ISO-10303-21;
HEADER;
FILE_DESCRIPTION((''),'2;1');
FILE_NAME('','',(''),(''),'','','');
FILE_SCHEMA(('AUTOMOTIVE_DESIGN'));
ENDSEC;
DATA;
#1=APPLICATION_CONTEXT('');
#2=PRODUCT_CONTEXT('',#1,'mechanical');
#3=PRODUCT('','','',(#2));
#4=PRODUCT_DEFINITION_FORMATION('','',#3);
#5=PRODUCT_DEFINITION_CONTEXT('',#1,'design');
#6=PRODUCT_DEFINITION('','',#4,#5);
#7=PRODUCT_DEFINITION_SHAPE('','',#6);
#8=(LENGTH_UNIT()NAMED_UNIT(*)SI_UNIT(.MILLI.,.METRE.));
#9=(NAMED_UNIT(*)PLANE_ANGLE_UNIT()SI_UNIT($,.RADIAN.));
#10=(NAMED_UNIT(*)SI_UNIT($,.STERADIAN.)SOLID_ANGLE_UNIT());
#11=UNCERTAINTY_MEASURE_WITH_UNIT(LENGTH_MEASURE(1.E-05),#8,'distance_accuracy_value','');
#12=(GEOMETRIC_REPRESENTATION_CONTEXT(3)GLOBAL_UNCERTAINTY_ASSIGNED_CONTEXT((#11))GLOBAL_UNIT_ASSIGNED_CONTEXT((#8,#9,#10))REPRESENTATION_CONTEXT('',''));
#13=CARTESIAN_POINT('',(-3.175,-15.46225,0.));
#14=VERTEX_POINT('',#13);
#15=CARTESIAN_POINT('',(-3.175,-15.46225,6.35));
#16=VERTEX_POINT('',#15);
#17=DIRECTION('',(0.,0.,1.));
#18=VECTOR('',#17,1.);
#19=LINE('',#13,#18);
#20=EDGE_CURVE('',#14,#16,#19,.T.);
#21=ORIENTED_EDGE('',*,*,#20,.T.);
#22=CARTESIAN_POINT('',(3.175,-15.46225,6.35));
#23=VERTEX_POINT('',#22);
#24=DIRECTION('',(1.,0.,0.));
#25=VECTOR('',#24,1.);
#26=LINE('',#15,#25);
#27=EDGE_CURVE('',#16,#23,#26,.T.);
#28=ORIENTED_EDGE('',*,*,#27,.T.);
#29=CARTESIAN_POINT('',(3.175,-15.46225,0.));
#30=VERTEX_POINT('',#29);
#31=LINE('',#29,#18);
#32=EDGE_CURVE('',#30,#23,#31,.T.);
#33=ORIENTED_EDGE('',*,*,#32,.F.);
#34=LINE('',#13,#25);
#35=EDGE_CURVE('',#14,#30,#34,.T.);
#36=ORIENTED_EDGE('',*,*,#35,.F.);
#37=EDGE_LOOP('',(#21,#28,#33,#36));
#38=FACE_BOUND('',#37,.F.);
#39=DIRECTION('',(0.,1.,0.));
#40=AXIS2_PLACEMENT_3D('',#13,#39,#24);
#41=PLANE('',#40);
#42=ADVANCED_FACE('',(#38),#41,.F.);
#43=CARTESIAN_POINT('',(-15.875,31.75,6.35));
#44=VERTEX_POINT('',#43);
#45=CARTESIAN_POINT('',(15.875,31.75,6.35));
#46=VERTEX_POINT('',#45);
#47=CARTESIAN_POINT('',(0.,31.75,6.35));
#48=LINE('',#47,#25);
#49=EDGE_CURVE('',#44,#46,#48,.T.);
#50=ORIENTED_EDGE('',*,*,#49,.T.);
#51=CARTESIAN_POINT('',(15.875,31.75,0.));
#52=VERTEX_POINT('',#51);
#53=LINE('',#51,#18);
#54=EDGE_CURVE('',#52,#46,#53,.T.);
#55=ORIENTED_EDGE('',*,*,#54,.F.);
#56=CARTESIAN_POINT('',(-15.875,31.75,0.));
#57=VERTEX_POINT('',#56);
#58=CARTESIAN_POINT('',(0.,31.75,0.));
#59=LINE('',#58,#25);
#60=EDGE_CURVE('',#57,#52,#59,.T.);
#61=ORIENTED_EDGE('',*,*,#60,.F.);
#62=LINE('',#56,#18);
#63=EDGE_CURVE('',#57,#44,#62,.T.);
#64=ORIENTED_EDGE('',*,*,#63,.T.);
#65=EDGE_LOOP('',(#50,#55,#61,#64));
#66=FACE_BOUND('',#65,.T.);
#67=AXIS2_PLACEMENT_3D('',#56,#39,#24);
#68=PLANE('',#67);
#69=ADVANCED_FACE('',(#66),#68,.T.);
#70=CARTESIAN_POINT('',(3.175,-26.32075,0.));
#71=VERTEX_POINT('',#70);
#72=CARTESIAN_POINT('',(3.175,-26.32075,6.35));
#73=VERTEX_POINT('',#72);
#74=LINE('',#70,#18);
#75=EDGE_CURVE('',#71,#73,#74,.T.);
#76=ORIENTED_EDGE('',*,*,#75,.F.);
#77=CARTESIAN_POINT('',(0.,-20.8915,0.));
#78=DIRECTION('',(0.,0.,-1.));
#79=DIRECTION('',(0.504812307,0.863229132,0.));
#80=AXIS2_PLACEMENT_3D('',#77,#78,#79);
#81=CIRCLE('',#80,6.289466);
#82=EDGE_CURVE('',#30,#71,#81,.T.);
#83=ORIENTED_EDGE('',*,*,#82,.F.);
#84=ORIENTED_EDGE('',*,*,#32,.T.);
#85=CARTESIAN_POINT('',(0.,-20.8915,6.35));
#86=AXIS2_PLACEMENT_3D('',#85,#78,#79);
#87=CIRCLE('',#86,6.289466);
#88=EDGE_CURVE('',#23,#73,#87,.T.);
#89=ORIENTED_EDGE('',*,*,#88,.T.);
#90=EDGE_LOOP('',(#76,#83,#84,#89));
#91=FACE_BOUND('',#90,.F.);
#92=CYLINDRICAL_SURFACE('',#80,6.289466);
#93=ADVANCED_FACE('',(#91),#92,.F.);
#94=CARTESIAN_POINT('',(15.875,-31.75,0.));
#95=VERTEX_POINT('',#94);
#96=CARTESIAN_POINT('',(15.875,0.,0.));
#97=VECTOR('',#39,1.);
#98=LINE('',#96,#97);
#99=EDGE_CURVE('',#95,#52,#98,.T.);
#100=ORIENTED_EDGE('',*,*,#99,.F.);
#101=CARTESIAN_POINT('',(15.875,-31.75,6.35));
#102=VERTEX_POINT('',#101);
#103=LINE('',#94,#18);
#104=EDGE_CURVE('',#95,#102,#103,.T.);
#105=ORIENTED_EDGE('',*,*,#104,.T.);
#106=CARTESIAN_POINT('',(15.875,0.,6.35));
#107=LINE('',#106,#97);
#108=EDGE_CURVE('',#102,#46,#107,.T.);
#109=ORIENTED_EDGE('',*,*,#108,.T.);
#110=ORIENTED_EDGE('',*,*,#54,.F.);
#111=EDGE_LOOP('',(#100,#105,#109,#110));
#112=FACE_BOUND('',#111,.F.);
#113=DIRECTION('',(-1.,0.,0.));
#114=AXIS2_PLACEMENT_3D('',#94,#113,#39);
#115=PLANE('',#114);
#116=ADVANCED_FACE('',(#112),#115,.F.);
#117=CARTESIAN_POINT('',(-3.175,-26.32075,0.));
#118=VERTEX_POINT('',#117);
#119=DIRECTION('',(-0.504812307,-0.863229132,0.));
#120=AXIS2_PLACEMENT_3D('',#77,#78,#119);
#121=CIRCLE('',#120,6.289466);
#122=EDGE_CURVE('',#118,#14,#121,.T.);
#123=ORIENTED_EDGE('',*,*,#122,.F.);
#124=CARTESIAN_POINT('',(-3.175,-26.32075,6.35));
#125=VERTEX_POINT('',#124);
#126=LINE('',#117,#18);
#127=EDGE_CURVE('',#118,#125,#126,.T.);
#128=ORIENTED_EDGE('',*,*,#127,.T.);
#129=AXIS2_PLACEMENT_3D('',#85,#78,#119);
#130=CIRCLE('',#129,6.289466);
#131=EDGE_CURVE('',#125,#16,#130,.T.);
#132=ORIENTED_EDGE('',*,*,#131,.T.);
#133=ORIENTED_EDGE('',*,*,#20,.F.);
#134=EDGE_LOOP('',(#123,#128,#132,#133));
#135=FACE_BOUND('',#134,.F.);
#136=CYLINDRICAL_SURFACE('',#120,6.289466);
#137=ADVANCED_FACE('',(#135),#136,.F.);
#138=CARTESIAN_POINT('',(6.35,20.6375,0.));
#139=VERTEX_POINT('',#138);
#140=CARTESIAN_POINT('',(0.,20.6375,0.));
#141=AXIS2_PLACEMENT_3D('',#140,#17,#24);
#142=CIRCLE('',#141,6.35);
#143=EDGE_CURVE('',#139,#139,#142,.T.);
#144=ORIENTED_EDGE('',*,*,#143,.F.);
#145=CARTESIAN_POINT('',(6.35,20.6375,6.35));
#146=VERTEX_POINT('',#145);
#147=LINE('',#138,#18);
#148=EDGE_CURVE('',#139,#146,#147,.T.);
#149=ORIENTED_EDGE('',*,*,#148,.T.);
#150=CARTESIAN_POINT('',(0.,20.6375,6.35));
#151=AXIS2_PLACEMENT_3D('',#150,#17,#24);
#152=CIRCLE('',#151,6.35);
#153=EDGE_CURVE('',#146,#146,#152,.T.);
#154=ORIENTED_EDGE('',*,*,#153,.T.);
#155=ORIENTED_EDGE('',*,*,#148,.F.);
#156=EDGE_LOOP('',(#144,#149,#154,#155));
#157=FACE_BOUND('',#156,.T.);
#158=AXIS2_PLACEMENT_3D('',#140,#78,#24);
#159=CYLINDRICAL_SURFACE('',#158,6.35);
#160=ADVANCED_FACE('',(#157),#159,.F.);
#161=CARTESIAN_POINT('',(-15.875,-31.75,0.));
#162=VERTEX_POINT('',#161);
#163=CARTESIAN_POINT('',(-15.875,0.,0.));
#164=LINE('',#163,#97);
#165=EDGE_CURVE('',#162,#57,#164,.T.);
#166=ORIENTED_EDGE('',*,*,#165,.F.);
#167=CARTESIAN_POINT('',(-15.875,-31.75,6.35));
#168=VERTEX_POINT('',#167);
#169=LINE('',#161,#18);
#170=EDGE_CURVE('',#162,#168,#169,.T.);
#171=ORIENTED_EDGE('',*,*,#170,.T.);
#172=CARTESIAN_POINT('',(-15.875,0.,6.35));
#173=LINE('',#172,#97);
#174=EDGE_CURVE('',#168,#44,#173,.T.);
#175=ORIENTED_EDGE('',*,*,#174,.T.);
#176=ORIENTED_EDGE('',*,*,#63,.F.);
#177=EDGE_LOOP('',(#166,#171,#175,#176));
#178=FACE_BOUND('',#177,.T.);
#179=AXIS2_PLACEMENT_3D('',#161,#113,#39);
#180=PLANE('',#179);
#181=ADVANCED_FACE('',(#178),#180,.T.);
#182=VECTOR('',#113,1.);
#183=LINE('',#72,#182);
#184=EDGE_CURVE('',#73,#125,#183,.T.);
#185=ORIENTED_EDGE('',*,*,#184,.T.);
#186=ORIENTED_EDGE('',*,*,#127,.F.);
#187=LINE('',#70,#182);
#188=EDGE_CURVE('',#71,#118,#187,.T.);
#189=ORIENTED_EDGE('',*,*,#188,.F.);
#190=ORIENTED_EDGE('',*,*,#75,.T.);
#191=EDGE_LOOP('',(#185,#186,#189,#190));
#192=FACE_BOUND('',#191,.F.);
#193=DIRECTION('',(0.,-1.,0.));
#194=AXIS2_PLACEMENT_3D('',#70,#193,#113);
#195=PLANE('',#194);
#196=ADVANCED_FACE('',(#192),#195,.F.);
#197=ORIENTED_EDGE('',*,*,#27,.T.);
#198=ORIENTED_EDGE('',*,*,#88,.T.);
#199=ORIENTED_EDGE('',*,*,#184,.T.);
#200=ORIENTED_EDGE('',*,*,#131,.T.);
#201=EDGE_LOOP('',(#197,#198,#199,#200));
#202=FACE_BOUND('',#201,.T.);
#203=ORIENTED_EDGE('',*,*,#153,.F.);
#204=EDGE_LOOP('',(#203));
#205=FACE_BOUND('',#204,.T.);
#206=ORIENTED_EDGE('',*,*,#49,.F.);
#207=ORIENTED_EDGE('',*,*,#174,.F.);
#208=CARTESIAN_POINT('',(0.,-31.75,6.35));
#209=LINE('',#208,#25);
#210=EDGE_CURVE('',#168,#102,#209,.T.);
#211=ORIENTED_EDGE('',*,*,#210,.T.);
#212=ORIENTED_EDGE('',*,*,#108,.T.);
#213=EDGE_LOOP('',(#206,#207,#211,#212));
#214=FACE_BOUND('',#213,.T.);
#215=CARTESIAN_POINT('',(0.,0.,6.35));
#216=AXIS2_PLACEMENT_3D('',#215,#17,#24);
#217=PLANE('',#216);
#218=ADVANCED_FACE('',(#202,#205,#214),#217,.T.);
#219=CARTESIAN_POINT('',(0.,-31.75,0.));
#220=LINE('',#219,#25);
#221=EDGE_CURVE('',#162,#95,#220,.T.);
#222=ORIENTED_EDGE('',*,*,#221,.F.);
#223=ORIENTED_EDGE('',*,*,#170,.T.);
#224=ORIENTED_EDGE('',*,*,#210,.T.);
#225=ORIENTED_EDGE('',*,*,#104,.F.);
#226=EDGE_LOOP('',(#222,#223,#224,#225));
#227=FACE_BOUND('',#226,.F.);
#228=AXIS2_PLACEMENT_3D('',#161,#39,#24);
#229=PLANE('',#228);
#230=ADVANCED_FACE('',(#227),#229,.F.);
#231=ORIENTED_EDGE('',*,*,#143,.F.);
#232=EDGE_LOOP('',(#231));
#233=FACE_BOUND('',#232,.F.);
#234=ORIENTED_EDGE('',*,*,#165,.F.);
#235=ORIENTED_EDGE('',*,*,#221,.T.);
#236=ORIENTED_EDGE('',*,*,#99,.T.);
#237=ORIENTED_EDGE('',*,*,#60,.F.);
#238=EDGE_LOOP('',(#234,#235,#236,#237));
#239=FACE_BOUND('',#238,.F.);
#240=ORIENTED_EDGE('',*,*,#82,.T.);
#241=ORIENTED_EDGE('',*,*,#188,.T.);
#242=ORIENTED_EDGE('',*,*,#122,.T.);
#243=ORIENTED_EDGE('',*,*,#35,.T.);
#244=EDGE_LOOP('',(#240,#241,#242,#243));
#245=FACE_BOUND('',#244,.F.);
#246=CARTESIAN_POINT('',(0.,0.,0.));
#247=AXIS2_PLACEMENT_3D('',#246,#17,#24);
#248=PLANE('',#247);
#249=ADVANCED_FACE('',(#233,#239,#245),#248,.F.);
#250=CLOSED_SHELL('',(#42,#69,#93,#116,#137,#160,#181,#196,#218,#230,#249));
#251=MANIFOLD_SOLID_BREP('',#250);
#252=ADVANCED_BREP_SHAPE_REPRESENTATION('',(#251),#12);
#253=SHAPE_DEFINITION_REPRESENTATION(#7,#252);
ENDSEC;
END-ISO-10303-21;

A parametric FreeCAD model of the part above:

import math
import FreeCAD as App
import Part
import Sketcher
Q = App.Units.Quantity


def add_polygon(sketch, points):
    """Adds a closed chain of lines whose ends are joined by coincident constraints."""
    first, n = sketch.GeometryCount, len(points)
    for a, b in zip(points, points[1:] + points[:1]):
        sketch.addGeometry(Part.LineSegment(App.Vector(*a, 0), App.Vector(*b, 0)), False)
    for i in range(n):
        sketch.addConstraint(Sketcher.Constraint("Coincident", first + i, 2, first + (i + 1) % n, 1))

doc = App.newDocument("Part")
body = doc.addObject("PartDesign::Body", "Body")

# Sketch on XY plane
sketch1 = body.newObject("Sketcher::SketchObject", "Sketch")
sketch1.AttachmentSupport = (doc.getObject("XY_Plane"), [""])
sketch1.MapMode = "FlatFace"
add_polygon(sketch1, [(-15.875, 31.75), (-15.875, -31.75), (15.875, -31.75), (15.875, 31.75)])  # lines 0-3
sketch1.addGeometry(Part.LineSegment(App.Vector(-3.175, -15.46225, 0), App.Vector(3.175, -15.46225, 0)), False)  # 4
sketch1.addGeometry(Part.ArcOfCircle(Part.Circle(App.Vector(0, -20.8915, 0), App.Vector(0, 0, 1), 6.289466), math.radians(-59.681106), math.radians(59.681106)), False)  # 5
sketch1.addGeometry(Part.LineSegment(App.Vector(3.175, -26.32075, 0), App.Vector(-3.175, -26.32075, 0)), False)  # 6
sketch1.addGeometry(Part.ArcOfCircle(Part.Circle(App.Vector(0, -20.8915, 0), App.Vector(0, 0, 1), 6.289466), math.radians(120.318894), math.radians(239.681106)), False)  # 7
sketch1.addGeometry(Part.Circle(App.Vector(0, 20.6375, 0), App.Vector(0, 0, 1), 6.35), False)  # 8
sketch1.addConstraint([
    Sketcher.Constraint("Coincident", 4, 2, 5, 2),
    Sketcher.Constraint("Coincident", 5, 1, 6, 1),
    Sketcher.Constraint("Coincident", 6, 2, 7, 2),
    Sketcher.Constraint("Coincident", 7, 1, 4, 1),
    Sketcher.Constraint("Vertical", 0),
    Sketcher.Constraint("Horizontal", 1),
    Sketcher.Constraint("Vertical", 2),
    Sketcher.Constraint("Horizontal", 3),
    Sketcher.Constraint("Horizontal", 4),
    Sketcher.Constraint("Horizontal", 6),
    Sketcher.Constraint("Coincident", 7, 3, 5, 3),
    Sketcher.Constraint("Equal", 5, 7),
    Sketcher.Constraint("Symmetric", 0, 2, 2, 2, -1, 1),
    Sketcher.Constraint("PointOnObject", 5, 3, -2),
    Sketcher.Constraint("PointOnObject", 8, 3, -2),
    Sketcher.Constraint("Vertical", 4, 2, 5, 1),
    Sketcher.Constraint("Diameter", 8, Q("0.5 in")),
    Sketcher.Constraint("DistanceY", 0, 2, 0, 1, Q("2.5 in")),
    Sketcher.Constraint("DistanceX", 1, 1, 1, 2, Q("1.25 in")),
    Sketcher.Constraint("DistanceX", 4, 1, 4, 2, Q("0.25 in")),
    Sketcher.Constraint("DistanceY", -1, 1, 8, 3, Q("0.8125 in")),
    Sketcher.Constraint("DistanceY", 5, 3, 8, 3, Q("1.635 in")),
    Sketcher.Constraint("Radius", 5, Q("6.289466 mm")),
])
pad1 = body.newObject("PartDesign::Pad", "Pad")
pad1.Profile = sketch1
pad1.Length = Q("0.25 in")

doc.recompute()
